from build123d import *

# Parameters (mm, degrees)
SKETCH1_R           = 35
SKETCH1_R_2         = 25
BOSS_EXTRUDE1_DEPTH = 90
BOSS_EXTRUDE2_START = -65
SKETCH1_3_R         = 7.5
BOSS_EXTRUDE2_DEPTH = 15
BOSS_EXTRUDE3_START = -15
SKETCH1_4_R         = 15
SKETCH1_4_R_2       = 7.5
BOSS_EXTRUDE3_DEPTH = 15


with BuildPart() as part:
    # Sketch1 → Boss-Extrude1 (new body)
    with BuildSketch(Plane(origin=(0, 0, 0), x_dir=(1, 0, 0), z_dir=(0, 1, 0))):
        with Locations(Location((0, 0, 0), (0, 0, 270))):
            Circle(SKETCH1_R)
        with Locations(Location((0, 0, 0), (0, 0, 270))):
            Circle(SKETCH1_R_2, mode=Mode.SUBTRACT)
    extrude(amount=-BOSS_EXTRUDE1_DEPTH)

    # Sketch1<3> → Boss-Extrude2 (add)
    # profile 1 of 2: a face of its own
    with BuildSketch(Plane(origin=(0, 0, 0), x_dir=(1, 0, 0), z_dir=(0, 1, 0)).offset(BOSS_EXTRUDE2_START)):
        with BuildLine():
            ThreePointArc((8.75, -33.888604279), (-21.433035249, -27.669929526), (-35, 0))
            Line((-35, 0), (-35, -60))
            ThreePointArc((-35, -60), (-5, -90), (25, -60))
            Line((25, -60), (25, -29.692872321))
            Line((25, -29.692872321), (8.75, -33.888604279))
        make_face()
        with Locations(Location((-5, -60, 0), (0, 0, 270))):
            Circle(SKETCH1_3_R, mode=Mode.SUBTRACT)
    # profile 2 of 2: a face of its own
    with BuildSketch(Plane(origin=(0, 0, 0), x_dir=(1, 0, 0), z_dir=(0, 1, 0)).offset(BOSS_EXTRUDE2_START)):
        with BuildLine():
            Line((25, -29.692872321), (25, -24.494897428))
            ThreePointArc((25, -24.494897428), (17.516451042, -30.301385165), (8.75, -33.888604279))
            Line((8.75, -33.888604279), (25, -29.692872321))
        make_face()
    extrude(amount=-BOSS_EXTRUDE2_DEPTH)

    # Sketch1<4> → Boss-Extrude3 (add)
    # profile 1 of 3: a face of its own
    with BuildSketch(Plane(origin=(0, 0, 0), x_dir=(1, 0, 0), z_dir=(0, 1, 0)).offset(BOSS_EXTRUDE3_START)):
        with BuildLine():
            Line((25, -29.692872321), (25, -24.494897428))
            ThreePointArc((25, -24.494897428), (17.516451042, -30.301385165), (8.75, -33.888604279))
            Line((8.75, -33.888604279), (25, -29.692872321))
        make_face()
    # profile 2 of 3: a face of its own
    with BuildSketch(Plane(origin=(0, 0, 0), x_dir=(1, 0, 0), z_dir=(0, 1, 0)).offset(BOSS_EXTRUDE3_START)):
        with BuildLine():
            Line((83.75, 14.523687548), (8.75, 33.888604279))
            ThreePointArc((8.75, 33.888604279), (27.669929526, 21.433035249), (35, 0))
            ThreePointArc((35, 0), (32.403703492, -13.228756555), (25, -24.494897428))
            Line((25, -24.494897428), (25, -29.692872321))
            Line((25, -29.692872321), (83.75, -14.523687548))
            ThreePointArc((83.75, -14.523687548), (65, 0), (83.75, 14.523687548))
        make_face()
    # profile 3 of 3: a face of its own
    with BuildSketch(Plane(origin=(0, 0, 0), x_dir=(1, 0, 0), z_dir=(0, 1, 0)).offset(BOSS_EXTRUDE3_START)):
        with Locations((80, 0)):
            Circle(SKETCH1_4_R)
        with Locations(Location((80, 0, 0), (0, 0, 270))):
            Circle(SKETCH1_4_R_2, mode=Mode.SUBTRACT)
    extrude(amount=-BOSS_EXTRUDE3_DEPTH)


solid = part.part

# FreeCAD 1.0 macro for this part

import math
import FreeCAD as App
import Part
import Sketcher

V = App.Vector
Q = App.Units.Quantity

doc = App.newDocument("Part")
body = doc.addObject("PartDesign::Body", "Body")

# Sketch on XZ plane
sketch1 = doc.addObject("Sketcher::SketchObject", "Sketch")
body.addObject(sketch1)
sketch1.AttachmentSupport = (doc.XZ_Plane, [""])
sketch1.MapMode = "FlatFace"
sketch1.addGeometry([
    Part.Circle(V(0, 0, 0), V(0, 0, 1), 35),
    Part.Circle(V(0, 0, 0), V(0, 0, 1), 25),
], False)
sketch1.addConstraint([
    Sketcher.Constraint("Coincident", 0, 3, -1, 1),
    Sketcher.Constraint("Coincident", 1, 3, -1, 1),
    Sketcher.Constraint("Diameter", 0, Q("70 mm")),
    Sketcher.Constraint("Diameter", 1, Q("50 mm")),
])
pad1 = doc.addObject("PartDesign::Pad", "Pad")
body.addObject(pad1)
pad1.Profile = sketch1
pad1.Length = 90

# Sketch on XZ plane
sketch2 = doc.addObject("Sketcher::SketchObject", "Sketch001")
body.addObject(sketch2)
sketch2.AttachmentSupport = (doc.XZ_Plane, [""])
sketch2.MapMode = "FlatFace"
sketch2.AttachmentOffset = App.Placement(V(0, 0, 65), App.Rotation())
sketch2.addGeometry([
    Part.ArcOfCircle(Part.Circle(V(0, 0, 0), V(0, 0, 1), 35), math.radians(76), math.radians(180)),  # 0
    Part.LineSegment(V(-35, 0, 0), V(-35, 60, 0)),  # 1
    Part.ArcOfCircle(Part.Circle(V(-5, 60, 0), V(0, 0, 1), 30), math.radians(0), math.radians(180)),  # 2
    Part.LineSegment(V(25, 60, 0), V(25, 24, 0)),  # 3
    Part.ArcOfCircle(Part.Circle(V(0, 0, 0), V(0, 0, 1), 35), math.radians(44), math.radians(76)),  # 4
    Part.Circle(V(-5, 60, 0), V(0, 0, 1), 8),  # 5
], False)
sketch2.addConstraint([
    Sketcher.Constraint("Tangent", 0, 2, 1, 1),
    Sketcher.Constraint("Tangent", 1, 2, 2, 2),
    Sketcher.Constraint("Tangent", 2, 1, 3, 1),
    Sketcher.Constraint("Coincident", 3, 2, 4, 1),
    Sketcher.Constraint("Tangent", 4, 2, 0, 1),
    Sketcher.Constraint("Vertical", 1),
    Sketcher.Constraint("Vertical", 3),
    Sketcher.Constraint("Coincident", 0, 3, -1, 1),
    Sketcher.Constraint("Coincident", 5, 3, 2, 3),
    Sketcher.Constraint("Equal", 0, 4),
    Sketcher.Constraint("Diameter", 5, Q("15 mm")),
    Sketcher.Constraint("Radius", 0, Q("35 mm")),
    Sketcher.Constraint("Radius", 2, Q("30 mm")),
    Sketcher.Constraint("DistanceY", 1, 1, 1, 2, Q("60 mm")),
    Sketcher.Constraint("DistanceX", -1, 1, 4, 2, Q("8.75 mm")),
])
pad2 = doc.addObject("PartDesign::Pad", "Pad001")
body.addObject(pad2)
pad2.Profile = sketch2
pad2.Length = 15

# Sketch on XZ plane
sketch3 = doc.addObject("Sketcher::SketchObject", "Sketch002")
body.addObject(sketch3)
sketch3.AttachmentSupport = (doc.XZ_Plane, [""])
sketch3.MapMode = "FlatFace"
sketch3.AttachmentOffset = App.Placement(V(0, 0, 15), App.Rotation())
sketch3.addGeometry([
    Part.ArcOfCircle(Part.Circle(V(0, 0, 0), V(0, 0, 1), 35), math.radians(44), math.radians(76)),  # 0
    Part.LineSegment(V(9, 34, 0), V(25, 30, 0)),  # 1
    Part.LineSegment(V(25, 30, 0), V(84, 15, 0)),  # 2
    Part.ArcOfCircle(Part.Circle(V(80, 0, 0), V(0, 0, 1), 15), math.radians(-76), math.radians(76)),  # 3
    Part.LineSegment(V(84, -15, 0), V(9, -34, 0)),  # 4
    Part.ArcOfCircle(Part.Circle(V(0, 0, 0), V(0, 0, 1), 35), math.radians(-76), math.radians(0)),  # 5
    Part.ArcOfCircle(Part.Circle(V(0, 0, 0), V(0, 0, 1), 35), math.radians(0), math.radians(44)),  # 6
    Part.Circle(V(80, 0, 0), V(0, 0, 1), 8),  # 7
], False)
sketch3.addConstraint([
    Sketcher.Constraint("Tangent", 0, 2, 1, 1),
    Sketcher.Constraint("Coincident", 1, 2, 2, 1),
    Sketcher.Constraint("Tangent", 2, 2, 3, 2),
    Sketcher.Constraint("Tangent", 3, 1, 4, 1),
    Sketcher.Constraint("Tangent", 4, 2, 5, 1),
    Sketcher.Constraint("Tangent", 5, 2, 6, 1),
    Sketcher.Constraint("Tangent", 6, 2, 0, 1),
    Sketcher.Constraint("Coincident", 0, 3, -1, 1),
    Sketcher.Constraint("Coincident", 5, 3, -1, 1),
    Sketcher.Constraint("Coincident", 7, 3, 3, 3),
    Sketcher.Constraint("Symmetric", 2, 2, 3, 1, -1),
    Sketcher.Constraint("PointOnObject", 5, 2, -1),
    Sketcher.Constraint("Vertical", 1, 2, 6, 2),
    Sketcher.Constraint("Diameter", 7, Q("15 mm")),
    Sketcher.Constraint("Radius", 0, Q("35 mm")),
    Sketcher.Constraint("Radius", 3, Q("15 mm")),
    Sketcher.Constraint("DistanceX", -1, 1, 3, 3, Q("80 mm")),
    Sketcher.Constraint("DistanceX", -1, 1, 1, 2, Q("25 mm")),
])
pad3 = doc.addObject("PartDesign::Pad", "Pad002")
body.addObject(pad3)
pad3.Profile = sketch3
pad3.Length = 15

doc.recompute()
